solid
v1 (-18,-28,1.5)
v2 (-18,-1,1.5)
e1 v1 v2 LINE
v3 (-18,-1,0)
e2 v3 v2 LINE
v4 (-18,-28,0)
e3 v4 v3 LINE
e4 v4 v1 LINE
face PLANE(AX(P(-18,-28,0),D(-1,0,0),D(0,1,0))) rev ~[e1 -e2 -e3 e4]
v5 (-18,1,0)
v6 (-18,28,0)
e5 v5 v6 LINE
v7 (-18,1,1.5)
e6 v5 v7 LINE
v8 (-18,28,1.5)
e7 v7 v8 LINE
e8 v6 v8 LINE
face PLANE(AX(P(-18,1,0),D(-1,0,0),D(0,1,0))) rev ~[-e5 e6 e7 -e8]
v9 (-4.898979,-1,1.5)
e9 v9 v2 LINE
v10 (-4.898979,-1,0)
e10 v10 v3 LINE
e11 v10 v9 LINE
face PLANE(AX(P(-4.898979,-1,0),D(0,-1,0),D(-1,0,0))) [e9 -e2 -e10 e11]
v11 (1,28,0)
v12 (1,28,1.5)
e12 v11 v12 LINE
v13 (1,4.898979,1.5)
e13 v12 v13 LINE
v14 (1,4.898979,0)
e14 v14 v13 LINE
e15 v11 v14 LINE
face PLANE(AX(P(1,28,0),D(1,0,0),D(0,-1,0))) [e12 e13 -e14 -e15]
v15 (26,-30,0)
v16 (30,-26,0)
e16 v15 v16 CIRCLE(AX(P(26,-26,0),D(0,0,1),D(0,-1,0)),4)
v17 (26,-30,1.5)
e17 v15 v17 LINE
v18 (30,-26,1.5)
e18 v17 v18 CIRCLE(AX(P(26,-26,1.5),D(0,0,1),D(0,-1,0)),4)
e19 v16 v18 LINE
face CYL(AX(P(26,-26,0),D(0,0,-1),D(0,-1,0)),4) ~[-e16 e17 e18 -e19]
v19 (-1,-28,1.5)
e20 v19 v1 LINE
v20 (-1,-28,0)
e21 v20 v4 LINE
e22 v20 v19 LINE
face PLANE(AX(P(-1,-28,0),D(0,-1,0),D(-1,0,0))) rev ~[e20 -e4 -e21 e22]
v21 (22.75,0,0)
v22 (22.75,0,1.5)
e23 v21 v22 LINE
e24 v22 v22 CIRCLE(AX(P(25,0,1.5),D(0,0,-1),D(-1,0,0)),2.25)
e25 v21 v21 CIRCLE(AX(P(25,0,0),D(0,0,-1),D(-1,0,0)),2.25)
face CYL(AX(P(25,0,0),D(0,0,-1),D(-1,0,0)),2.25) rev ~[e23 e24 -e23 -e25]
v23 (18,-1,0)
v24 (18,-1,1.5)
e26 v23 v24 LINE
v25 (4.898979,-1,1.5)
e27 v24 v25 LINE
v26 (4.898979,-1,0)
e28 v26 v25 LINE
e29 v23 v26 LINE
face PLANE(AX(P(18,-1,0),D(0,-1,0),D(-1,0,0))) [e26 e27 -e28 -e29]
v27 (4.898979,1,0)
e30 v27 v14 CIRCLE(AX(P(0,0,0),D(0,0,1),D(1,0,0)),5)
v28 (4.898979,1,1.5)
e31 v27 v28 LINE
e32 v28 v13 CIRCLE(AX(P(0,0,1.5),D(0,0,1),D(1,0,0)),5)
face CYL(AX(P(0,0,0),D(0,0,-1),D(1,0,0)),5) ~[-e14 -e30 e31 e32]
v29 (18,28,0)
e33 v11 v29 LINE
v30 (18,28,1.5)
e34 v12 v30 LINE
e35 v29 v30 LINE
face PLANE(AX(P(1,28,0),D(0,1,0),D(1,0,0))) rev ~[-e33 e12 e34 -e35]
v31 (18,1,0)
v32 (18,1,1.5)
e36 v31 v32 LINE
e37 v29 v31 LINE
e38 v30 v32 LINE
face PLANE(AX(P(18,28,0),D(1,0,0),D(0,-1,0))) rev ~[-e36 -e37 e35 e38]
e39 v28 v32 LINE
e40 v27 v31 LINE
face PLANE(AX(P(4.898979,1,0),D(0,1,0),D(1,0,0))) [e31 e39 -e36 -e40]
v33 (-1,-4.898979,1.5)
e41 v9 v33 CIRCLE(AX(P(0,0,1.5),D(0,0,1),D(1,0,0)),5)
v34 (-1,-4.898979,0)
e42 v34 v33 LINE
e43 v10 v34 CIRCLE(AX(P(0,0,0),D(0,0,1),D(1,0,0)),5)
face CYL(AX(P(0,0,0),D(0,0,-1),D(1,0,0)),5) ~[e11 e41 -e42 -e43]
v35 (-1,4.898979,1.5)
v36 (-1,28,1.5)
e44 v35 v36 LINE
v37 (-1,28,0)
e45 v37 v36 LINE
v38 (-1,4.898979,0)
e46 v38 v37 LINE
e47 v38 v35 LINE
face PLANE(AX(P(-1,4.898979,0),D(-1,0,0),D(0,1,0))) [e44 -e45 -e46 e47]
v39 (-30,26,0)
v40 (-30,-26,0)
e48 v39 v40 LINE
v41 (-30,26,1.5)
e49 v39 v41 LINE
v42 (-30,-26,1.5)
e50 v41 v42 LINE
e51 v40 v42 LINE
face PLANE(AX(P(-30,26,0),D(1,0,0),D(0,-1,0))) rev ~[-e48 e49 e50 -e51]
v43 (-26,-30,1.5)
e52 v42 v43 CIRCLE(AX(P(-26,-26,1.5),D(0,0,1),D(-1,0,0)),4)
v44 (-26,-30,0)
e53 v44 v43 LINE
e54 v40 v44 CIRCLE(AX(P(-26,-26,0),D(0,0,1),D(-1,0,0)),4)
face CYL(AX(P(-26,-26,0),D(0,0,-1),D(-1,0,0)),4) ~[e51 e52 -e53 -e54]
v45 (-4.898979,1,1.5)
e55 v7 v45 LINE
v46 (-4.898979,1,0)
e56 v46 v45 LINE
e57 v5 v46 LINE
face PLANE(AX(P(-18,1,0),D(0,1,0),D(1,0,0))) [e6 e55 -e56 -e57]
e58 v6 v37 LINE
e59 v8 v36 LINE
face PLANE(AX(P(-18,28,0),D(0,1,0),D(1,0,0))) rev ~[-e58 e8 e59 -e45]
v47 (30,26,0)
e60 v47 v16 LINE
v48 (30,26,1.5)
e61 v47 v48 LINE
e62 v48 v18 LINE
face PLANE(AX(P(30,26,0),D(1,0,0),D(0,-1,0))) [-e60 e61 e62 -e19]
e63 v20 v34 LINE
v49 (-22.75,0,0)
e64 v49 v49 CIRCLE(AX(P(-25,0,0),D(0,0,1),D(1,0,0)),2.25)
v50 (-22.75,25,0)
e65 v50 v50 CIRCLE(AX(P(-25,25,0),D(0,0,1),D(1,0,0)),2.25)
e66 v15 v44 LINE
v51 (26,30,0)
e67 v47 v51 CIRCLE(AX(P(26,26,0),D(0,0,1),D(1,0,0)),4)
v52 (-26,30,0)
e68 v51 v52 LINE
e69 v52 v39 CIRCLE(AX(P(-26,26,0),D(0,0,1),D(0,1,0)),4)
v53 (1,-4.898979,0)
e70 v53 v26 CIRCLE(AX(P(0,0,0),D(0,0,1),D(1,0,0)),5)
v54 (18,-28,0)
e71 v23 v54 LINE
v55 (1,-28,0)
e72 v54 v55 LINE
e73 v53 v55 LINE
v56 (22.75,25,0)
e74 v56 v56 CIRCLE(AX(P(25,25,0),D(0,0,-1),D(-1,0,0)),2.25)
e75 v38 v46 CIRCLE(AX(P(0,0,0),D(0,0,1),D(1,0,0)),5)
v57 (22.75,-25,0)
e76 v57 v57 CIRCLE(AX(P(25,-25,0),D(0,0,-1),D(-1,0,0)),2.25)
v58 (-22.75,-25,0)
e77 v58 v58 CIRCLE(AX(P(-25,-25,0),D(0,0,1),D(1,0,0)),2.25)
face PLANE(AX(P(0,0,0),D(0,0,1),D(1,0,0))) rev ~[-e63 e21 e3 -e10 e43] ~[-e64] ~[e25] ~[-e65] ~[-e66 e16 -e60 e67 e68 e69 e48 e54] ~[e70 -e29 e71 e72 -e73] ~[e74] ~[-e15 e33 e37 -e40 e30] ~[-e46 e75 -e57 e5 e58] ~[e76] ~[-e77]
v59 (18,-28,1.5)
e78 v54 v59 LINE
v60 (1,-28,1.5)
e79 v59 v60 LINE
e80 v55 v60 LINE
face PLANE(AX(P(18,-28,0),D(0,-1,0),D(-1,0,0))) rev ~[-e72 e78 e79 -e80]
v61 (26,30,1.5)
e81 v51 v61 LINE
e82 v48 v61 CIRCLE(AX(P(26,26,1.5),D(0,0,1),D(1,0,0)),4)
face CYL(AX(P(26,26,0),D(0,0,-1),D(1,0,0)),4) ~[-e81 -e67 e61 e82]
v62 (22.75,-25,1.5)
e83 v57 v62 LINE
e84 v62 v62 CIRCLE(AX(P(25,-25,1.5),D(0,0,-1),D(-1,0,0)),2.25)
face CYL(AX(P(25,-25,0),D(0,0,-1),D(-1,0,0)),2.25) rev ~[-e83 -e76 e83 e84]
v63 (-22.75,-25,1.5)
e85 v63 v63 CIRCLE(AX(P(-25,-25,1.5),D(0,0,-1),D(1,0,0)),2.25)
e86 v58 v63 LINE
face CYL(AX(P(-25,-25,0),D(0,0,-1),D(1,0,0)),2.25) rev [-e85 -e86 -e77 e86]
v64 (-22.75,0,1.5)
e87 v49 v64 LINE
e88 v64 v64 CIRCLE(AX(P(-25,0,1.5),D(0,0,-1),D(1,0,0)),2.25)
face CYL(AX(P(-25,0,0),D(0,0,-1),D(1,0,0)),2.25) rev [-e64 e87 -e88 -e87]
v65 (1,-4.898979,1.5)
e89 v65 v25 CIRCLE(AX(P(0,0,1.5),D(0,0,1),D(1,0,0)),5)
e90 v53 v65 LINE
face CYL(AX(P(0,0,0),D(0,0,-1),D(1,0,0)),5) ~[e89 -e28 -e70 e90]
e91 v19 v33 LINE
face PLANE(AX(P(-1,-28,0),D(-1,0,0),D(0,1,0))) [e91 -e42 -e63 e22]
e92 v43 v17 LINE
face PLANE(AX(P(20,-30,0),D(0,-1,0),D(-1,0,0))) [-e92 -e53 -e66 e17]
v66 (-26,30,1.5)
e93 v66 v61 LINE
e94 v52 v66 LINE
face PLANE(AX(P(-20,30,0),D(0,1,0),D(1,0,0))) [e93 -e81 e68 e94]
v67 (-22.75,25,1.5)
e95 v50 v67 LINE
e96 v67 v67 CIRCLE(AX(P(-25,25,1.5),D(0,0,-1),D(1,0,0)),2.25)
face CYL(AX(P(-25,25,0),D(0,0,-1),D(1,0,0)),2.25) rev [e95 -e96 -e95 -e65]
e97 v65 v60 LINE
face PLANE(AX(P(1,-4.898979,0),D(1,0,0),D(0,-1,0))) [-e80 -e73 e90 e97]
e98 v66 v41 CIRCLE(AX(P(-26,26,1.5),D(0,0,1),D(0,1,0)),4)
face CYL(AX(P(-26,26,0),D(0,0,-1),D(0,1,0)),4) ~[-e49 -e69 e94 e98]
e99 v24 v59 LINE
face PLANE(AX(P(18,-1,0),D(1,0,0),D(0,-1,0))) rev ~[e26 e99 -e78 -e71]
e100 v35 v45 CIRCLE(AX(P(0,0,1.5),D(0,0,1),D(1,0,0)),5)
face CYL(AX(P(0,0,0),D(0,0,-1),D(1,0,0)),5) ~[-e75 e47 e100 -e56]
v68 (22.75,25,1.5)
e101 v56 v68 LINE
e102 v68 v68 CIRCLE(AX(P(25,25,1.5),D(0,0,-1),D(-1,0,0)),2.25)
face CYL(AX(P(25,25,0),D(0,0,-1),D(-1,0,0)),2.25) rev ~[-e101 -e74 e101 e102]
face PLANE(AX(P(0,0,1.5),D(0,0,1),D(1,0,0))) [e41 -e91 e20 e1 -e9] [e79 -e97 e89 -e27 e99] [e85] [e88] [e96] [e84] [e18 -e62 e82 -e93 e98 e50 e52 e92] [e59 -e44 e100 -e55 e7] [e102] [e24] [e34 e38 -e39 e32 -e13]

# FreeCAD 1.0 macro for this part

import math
import FreeCAD as App
import Part
import Sketcher
from FreeCAD import Vector
Q = App.Units.Quantity

doc = App.newDocument("Part")
params = doc.addObject("Spreadsheet::Sheet", "Params")
for row, (alias, value) in enumerate([
    ("sketch1_radius", "4 mm"),
    ("sketch1_radius2", "5 mm"),
    ("sketch1_width", "52 mm"),
    ("sketch1_width2", "17 mm"),
    ("pad1_length", "1.5 mm"),
    ("sketch2_diameter", "4.5 mm"),
    ("pocket1_length", "2 mm"),
], start=1):
    params.set(f"A{row}", alias)
    params.set(f"B{row}", "=" + value)
    params.setAlias(f"B{row}", alias)

body = doc.addObject("PartDesign::Body", "Body")

# Sketch on XY plane
sketch1 = body.newObject("Sketcher::SketchObject", "Sketch")
sketch1.AttachmentSupport = (doc.getObject("XY_Plane"), [""])
sketch1.MapMode = "FlatFace"
sketch1.addGeometry([
    Part.ArcOfCircle(Part.Circle(Vector(-26, 26, 0), Vector(0, 0, 1), 4), math.radians(90), math.radians(180)),  # 0
    Part.LineSegment(Vector(-30, 26, 0), Vector(-30, -26, 0)),  # 1
    Part.ArcOfCircle(Part.Circle(Vector(-26, -26, 0), Vector(0, 0, 1), 4), math.radians(180), math.radians(270)),  # 2
    Part.LineSegment(Vector(-26, -30, 0), Vector(26, -30, 0)),  # 3
    Part.ArcOfCircle(Part.Circle(Vector(26, -26, 0), Vector(0, 0, 1), 4), math.radians(-90), math.radians(0)),  # 4
    Part.LineSegment(Vector(30, -26, 0), Vector(30, 26, 0)),  # 5
    Part.ArcOfCircle(Part.Circle(Vector(26, 26, 0), Vector(0, 0, 1), 4), math.radians(0), math.radians(90)),  # 6
    Part.LineSegment(Vector(26, 30, 0), Vector(-26, 30, 0)),  # 7
    Part.LineSegment(Vector(-18, 1, 0), Vector(-18, 28, 0)),  # 8
    Part.LineSegment(Vector(-18, 28, 0), Vector(-1, 28, 0)),  # 9
    Part.LineSegment(Vector(-1, 28, 0), Vector(-1, 4.9, 0)),  # 10
    Part.ArcOfCircle(Part.Circle(Vector(0, 0, 0), Vector(0, 0, 1), 5), math.radians(102), math.radians(168)),  # 11
    Part.LineSegment(Vector(-4.9, 1, 0), Vector(-18, 1, 0)),  # 12
    Part.LineSegment(Vector(-18, -28, 0), Vector(-18, -1, 0)),  # 13
    Part.LineSegment(Vector(-18, -1, 0), Vector(-4.9, -1, 0)),  # 14
    Part.ArcOfCircle(Part.Circle(Vector(0, 0, 0), Vector(0, 0, 1), 5), math.radians(-168), math.radians(-102)),  # 15
    Part.LineSegment(Vector(-1, -4.9, 0), Vector(-1, -28, 0)),  # 16
    Part.LineSegment(Vector(-1, -28, 0), Vector(-18, -28, 0)),  # 17
    Part.LineSegment(Vector(18, -28, 0), Vector(1, -28, 0)),  # 18
    Part.LineSegment(Vector(1, -28, 0), Vector(1, -4.9, 0)),  # 19
    Part.ArcOfCircle(Part.Circle(Vector(0, 0, 0), Vector(0, 0, 1), 5), math.radians(-78), math.radians(-12)),  # 20
    Part.LineSegment(Vector(4.9, -1, 0), Vector(18, -1, 0)),  # 21
    Part.LineSegment(Vector(18, -1, 0), Vector(18, -28, 0)),  # 22
    Part.LineSegment(Vector(18, 28, 0), Vector(18, 1, 0)),  # 23
    Part.LineSegment(Vector(18, 1, 0), Vector(4.9, 1, 0)),  # 24
    Part.ArcOfCircle(Part.Circle(Vector(0, 0, 0), Vector(0, 0, 1), 5), math.radians(12), math.radians(78)),  # 25
    Part.LineSegment(Vector(1, 4.9, 0), Vector(1, 28, 0)),  # 26
    Part.LineSegment(Vector(1, 28, 0), Vector(18, 28, 0)),  # 27
], False)
sketch1.addConstraint([
    Sketcher.Constraint("Tangent", 0, 2, 1, 1),
    Sketcher.Constraint("Tangent", 1, 2, 2, 1),
    Sketcher.Constraint("Tangent", 2, 2, 3, 1),
    Sketcher.Constraint("Tangent", 3, 2, 4, 1),
    Sketcher.Constraint("Tangent", 4, 2, 5, 1),
    Sketcher.Constraint("Tangent", 5, 2, 6, 1),
    Sketcher.Constraint("Tangent", 6, 2, 7, 1),
    Sketcher.Constraint("Tangent", 7, 2, 0, 1),
    Sketcher.Constraint("Coincident", 8, 2, 9, 1),
    Sketcher.Constraint("Coincident", 9, 2, 10, 1),
    Sketcher.Constraint("Coincident", 10, 2, 11, 1),
    Sketcher.Constraint("Coincident", 11, 2, 12, 1),
    Sketcher.Constraint("Coincident", 12, 2, 8, 1),
    Sketcher.Constraint("Coincident", 13, 2, 14, 1),
    Sketcher.Constraint("Coincident", 14, 2, 15, 1),
    Sketcher.Constraint("Coincident", 15, 2, 16, 1),
    Sketcher.Constraint("Coincident", 16, 2, 17, 1),
    Sketcher.Constraint("Coincident", 17, 2, 13, 1),
    Sketcher.Constraint("Coincident", 18, 2, 19, 1),
    Sketcher.Constraint("Coincident", 19, 2, 20, 1),
    Sketcher.Constraint("Coincident", 20, 2, 21, 1),
    Sketcher.Constraint("Coincident", 21, 2, 22, 1),
    Sketcher.Constraint("Coincident", 22, 2, 18, 1),
    Sketcher.Constraint("Coincident", 23, 2, 24, 1),
    Sketcher.Constraint("Coincident", 24, 2, 25, 1),
    Sketcher.Constraint("Coincident", 25, 2, 26, 1),
    Sketcher.Constraint("Coincident", 26, 2, 27, 1),
    Sketcher.Constraint("Coincident", 27, 2, 23, 1),
    Sketcher.Constraint("Vertical", 1),
    Sketcher.Constraint("Horizontal", 3),
    Sketcher.Constraint("Vertical", 5),
    Sketcher.Constraint("Horizontal", 7),
    Sketcher.Constraint("Vertical", 8),
    Sketcher.Constraint("Horizontal", 9),
    Sketcher.Constraint("Vertical", 10),
    Sketcher.Constraint("Horizontal", 12),
    Sketcher.Constraint("Vertical", 13),
    Sketcher.Constraint("Horizontal", 14),
    Sketcher.Constraint("Vertical", 16),
    Sketcher.Constraint("Horizontal", 17),
    Sketcher.Constraint("Horizontal", 18),
    Sketcher.Constraint("Vertical", 19),
    Sketcher.Constraint("Horizontal", 21),
    Sketcher.Constraint("Vertical", 22),
    Sketcher.Constraint("Vertical", 23),
    Sketcher.Constraint("Horizontal", 24),
    Sketcher.Constraint("Vertical", 26),
    Sketcher.Constraint("Horizontal", 27),
    Sketcher.Constraint("Coincident", 11, 3, -1, 1),
    Sketcher.Constraint("Coincident", 15, 3, -1, 1),
    Sketcher.Constraint("Coincident", 20, 3, -1, 1),
    Sketcher.Constraint("Coincident", 25, 3, -1, 1),
    Sketcher.Constraint("Equal", 0, 2),
    Sketcher.Constraint("Equal", 2, 4),
    Sketcher.Constraint("Equal", 4, 6),
    Sketcher.Constraint("Equal", 11, 15),
    Sketcher.Constraint("Equal", 15, 20),
    Sketcher.Constraint("Equal", 20, 25),
    Sketcher.Constraint("Symmetric", 0, 3, 4, 3, -1, 1),
    Sketcher.Constraint("Symmetric", 9, 2, 18, 2, -1, 1),
    Sketcher.Constraint("Symmetric", 12, 2, 21, 2, -1, 1),
    Sketcher.Constraint("Symmetric", 13, 2, 23, 2, -1, 1),
    Sketcher.Constraint("Symmetric", 16, 2, 26, 2, -1, 1),
    Sketcher.Constraint("Symmetric", 16, 2, 18, 2, -2),
    Sketcher.Constraint("Symmetric", 13, 2, 21, 2, -2),
    Sketcher.Constraint("Equal", 7, 1),
    Sketcher.Constraint("Radius", 0, Q("4 mm")),
    Sketcher.Constraint("Radius", 11, Q("5 mm")),
    Sketcher.Constraint("DistanceY", 0, 3, 8, 2, Q("2 mm")),
    Sketcher.Constraint("DistanceY", 13, 2, 12, 2, Q("2 mm")),
    Sketcher.Constraint("DistanceX", 16, 2, 18, 2, Q("2 mm")),
    Sketcher.Constraint("DistanceX", 3, 1, 3, 2, Q("52 mm")),
    Sketcher.Constraint("DistanceX", 9, 1, 9, 2, Q("17 mm")),
])
sketch1.setExpression("Constraints[66]", "Params.sketch1_radius")
sketch1.setExpression("Constraints[67]", "Params.sketch1_radius2")
sketch1.setExpression("Constraints[71]", "Params.sketch1_width")
sketch1.setExpression("Constraints[72]", "Params.sketch1_width2")
pad1 = body.newObject("PartDesign::Pad", "Pad")
pad1.Profile = sketch1
pad1.setExpression("Length", "Params.pad1_length")

# Sketch on XY plane
sketch2 = body.newObject("Sketcher::SketchObject", "Sketch001")
sketch2.AttachmentSupport = (doc.getObject("XY_Plane"), [""])
sketch2.MapMode = "FlatFace"
sketch2.addGeometry([
    Part.Circle(Vector(-25, 0, 0), Vector(0, 0, 1), 2.2),
    Part.Circle(Vector(-25, 25, 0), Vector(0, 0, 1), 2.2),
    Part.Circle(Vector(-25, -25, 0), Vector(0, 0, 1), 2.2),
], False)
sketch2.addConstraint([
    Sketcher.Constraint("Equal", 0, 1),
    Sketcher.Constraint("Equal", 1, 2),
    Sketcher.Constraint("Symmetric", 1, 3, 2, 3, -1),
    Sketcher.Constraint("PointOnObject", 0, 3, -1),
    Sketcher.Constraint("Vertical", 0, 3, 1, 3),
    Sketcher.Constraint("Diameter", 0, Q("4.5 mm")),
    Sketcher.Constraint("DistanceX", 0, 3, -1, 1, Q("25 mm")),
    Sketcher.Constraint("DistanceY", -1, 1, 1, 3, Q("25 mm")),
])
sketch2.setExpression("Constraints[5]", "Params.sketch2_diameter")
pocket1 = body.newObject("PartDesign::Pocket", "Pocket")
pocket1.Profile = sketch2
pocket1.setExpression("Length", "Params.pocket1_length")
pocket1.Reversed = True
doc.recompute()

mirrored = body.newObject("PartDesign::Mirrored", "Mirrored")
mirrored.Originals = [pocket1]
mirrored.MirrorPlane = (doc.getObject("YZ_Plane"), [""])
body.Tip = mirrored

doc.recompute()
